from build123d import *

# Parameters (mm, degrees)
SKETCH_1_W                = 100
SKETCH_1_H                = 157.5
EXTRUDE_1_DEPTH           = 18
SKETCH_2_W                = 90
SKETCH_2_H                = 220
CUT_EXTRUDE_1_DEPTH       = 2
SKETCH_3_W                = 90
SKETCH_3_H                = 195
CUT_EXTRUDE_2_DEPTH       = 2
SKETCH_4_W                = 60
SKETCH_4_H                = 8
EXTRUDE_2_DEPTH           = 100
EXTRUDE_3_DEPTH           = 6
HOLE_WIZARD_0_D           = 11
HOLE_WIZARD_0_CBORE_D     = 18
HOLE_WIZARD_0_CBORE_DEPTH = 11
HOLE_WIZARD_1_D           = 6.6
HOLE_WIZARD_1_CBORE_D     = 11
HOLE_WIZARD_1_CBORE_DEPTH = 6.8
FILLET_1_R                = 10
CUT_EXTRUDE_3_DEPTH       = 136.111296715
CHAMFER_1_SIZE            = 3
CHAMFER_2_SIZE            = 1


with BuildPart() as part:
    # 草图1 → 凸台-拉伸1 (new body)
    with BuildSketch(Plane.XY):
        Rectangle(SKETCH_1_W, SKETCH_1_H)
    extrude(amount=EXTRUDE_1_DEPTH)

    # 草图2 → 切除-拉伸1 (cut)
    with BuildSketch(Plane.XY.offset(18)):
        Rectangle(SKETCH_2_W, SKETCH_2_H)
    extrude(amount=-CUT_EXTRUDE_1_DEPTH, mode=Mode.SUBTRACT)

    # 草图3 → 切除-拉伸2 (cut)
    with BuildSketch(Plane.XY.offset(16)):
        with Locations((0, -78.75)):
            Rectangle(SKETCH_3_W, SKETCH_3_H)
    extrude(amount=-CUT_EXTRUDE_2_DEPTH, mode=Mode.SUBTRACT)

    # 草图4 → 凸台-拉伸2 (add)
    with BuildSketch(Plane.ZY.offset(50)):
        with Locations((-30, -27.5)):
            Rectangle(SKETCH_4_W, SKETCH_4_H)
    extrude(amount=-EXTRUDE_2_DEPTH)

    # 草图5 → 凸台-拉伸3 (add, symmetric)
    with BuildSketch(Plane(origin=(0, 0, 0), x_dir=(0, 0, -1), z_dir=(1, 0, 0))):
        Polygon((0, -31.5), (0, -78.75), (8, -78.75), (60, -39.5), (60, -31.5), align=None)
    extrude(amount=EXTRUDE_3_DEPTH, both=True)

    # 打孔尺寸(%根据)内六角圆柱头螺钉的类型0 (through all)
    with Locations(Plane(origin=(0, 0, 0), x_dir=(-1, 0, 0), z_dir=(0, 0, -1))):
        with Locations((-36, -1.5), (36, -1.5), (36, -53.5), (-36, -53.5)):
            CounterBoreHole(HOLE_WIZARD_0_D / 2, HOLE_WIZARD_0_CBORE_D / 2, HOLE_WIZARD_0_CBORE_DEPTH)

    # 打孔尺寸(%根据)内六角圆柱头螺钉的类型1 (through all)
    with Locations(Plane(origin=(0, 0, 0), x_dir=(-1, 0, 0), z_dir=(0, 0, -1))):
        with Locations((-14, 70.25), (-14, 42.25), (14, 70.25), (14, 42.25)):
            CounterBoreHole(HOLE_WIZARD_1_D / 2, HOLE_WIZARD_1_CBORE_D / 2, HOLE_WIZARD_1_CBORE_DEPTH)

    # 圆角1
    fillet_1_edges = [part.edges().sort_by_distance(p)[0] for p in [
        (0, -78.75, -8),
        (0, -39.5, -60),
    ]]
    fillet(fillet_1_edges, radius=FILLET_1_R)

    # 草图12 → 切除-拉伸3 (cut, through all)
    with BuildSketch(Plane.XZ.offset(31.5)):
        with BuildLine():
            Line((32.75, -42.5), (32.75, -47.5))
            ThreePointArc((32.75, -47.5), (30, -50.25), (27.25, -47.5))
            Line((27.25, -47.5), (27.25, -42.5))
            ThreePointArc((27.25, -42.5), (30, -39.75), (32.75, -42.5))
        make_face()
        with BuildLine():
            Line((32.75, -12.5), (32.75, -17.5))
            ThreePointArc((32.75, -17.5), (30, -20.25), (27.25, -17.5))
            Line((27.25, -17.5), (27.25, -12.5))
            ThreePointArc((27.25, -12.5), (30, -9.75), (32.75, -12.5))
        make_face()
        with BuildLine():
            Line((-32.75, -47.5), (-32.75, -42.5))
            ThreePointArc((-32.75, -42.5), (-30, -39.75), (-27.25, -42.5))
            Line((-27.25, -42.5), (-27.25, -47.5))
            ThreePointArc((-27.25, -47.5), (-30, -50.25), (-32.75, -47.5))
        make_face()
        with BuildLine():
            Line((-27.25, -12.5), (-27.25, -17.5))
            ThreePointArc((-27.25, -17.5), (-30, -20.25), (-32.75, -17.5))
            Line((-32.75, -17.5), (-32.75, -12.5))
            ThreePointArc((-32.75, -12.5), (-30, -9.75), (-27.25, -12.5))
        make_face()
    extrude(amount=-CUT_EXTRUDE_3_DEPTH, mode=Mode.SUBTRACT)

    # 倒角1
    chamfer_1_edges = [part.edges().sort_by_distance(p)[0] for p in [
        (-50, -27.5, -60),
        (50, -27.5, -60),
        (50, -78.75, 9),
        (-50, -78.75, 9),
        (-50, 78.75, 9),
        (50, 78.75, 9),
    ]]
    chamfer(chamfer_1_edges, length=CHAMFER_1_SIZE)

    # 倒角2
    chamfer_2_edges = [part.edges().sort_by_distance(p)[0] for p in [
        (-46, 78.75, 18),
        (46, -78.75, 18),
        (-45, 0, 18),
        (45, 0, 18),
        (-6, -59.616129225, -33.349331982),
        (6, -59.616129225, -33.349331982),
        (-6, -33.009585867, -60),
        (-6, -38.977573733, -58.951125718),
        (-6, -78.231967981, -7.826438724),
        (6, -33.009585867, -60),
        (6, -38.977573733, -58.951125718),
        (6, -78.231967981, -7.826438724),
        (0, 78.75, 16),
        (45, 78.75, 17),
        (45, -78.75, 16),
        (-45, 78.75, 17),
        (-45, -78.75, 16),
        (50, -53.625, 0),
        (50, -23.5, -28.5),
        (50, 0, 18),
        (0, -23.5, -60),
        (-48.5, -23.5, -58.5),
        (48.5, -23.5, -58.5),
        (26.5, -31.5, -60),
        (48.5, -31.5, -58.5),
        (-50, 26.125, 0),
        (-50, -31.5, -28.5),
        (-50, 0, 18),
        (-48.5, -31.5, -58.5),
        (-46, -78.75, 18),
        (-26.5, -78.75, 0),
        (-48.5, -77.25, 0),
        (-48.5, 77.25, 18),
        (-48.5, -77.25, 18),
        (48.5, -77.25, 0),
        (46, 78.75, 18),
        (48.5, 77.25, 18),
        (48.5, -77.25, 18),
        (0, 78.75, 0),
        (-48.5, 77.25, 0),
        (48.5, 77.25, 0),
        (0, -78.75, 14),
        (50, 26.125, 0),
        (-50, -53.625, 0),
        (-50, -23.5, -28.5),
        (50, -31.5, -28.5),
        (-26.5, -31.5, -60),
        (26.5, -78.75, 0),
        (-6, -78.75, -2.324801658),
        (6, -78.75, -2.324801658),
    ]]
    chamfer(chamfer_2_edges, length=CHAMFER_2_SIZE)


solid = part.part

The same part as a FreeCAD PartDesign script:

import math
import FreeCAD as App
import Part
import Sketcher


def edges_at(feature, points):
    """Names of the edges that pass closest to the given points."""
    edges = feature.Shape.Edges
    near = lambda p: min(range(len(edges)), key=lambda i: edges[i].distToShape(Part.Vertex(*p))[0])
    return sorted({f"Edge{near(p) + 1}" for p in points})

doc = App.newDocument("Part")
body = doc.addObject("PartDesign::Body", "Body")

# Sketch on XY plane
sketch1 = body.newObject("Sketcher::SketchObject", "Sketch")
sketch1.AttachmentSupport = (doc.getObject("XY_Plane"), [""])
sketch1.MapMode = "FlatFace"
sketch1.addGeometry([
    Part.LineSegment(App.Vector(-50, 79, 0), App.Vector(-50, -79, 0)),
    Part.LineSegment(App.Vector(-50, -79, 0), App.Vector(50, -79, 0)),
    Part.LineSegment(App.Vector(50, -79, 0), App.Vector(50, 79, 0)),
    Part.LineSegment(App.Vector(50, 79, 0), App.Vector(-50, 79, 0)),
], False)
sketch1.addConstraint([
    Sketcher.Constraint("Coincident", 0, 2, 1, 1),
    Sketcher.Constraint("Coincident", 1, 2, 2, 1),
    Sketcher.Constraint("Coincident", 2, 2, 3, 1),
    Sketcher.Constraint("Coincident", 3, 2, 0, 1),
    Sketcher.Constraint("Vertical", 0),
    Sketcher.Constraint("Horizontal", 1),
    Sketcher.Constraint("Vertical", 2),
    Sketcher.Constraint("Horizontal", 3),
    Sketcher.Constraint("Symmetric", 0, 2, 2, 2, -1, 1),
    Sketcher.Constraint("DistanceX", 1, 1, 1, 2, 100.0),
    Sketcher.Constraint("DistanceY", 0, 2, 0, 1, 157.5),
])
pad1 = body.newObject("PartDesign::Pad", "Pad")
pad1.Profile = sketch1
pad1.Length = 18

# Sketch on XY plane
sketch2 = body.newObject("Sketcher::SketchObject", "Sketch001")
sketch2.AttachmentSupport = (doc.getObject("XY_Plane"), [""])
sketch2.MapMode = "FlatFace"
sketch2.AttachmentOffset = App.Placement(App.Vector(0, 0, 18), App.Rotation())
sketch2.addGeometry([
    Part.LineSegment(App.Vector(-45, 110, 0), App.Vector(-45, -110, 0)),
    Part.LineSegment(App.Vector(-45, -110, 0), App.Vector(45, -110, 0)),
    Part.LineSegment(App.Vector(45, -110, 0), App.Vector(45, 110, 0)),
    Part.LineSegment(App.Vector(45, 110, 0), App.Vector(-45, 110, 0)),
], False)
sketch2.addConstraint([
    Sketcher.Constraint("Coincident", 0, 2, 1, 1),
    Sketcher.Constraint("Coincident", 1, 2, 2, 1),
    Sketcher.Constraint("Coincident", 2, 2, 3, 1),
    Sketcher.Constraint("Coincident", 3, 2, 0, 1),
    Sketcher.Constraint("Vertical", 0),
    Sketcher.Constraint("Horizontal", 1),
    Sketcher.Constraint("Vertical", 2),
    Sketcher.Constraint("Horizontal", 3),
    Sketcher.Constraint("Symmetric", 0, 2, 2, 2, -1, 1),
    Sketcher.Constraint("DistanceX", 1, 1, 1, 2, 90.0),
    Sketcher.Constraint("DistanceY", 0, 2, 0, 1, 220.0),
])
pocket1 = body.newObject("PartDesign::Pocket", "Pocket")
pocket1.Profile = sketch2
pocket1.Length = 2

# Sketch on XY plane
sketch3 = body.newObject("Sketcher::SketchObject", "Sketch002")
sketch3.AttachmentSupport = (doc.getObject("XY_Plane"), [""])
sketch3.MapMode = "FlatFace"
sketch3.AttachmentOffset = App.Placement(App.Vector(0, 0, 16), App.Rotation())
sketch3.addGeometry([
    Part.LineSegment(App.Vector(-45, 19, 0), App.Vector(-45, -176, 0)),
    Part.LineSegment(App.Vector(-45, -176, 0), App.Vector(45, -176, 0)),
    Part.LineSegment(App.Vector(45, -176, 0), App.Vector(45, 19, 0)),
    Part.LineSegment(App.Vector(45, 19, 0), App.Vector(-45, 19, 0)),
], False)
sketch3.addConstraint([
    Sketcher.Constraint("Coincident", 0, 2, 1, 1),
    Sketcher.Constraint("Coincident", 1, 2, 2, 1),
    Sketcher.Constraint("Coincident", 2, 2, 3, 1),
    Sketcher.Constraint("Coincident", 3, 2, 0, 1),
    Sketcher.Constraint("Vertical", 0),
    Sketcher.Constraint("Horizontal", 1),
    Sketcher.Constraint("Vertical", 2),
    Sketcher.Constraint("Horizontal", 3),
    Sketcher.Constraint("DistanceX", 1, 1, 1, 2, 90.0),
    Sketcher.Constraint("DistanceY", 0, 2, 0, 1, 195.0),
    Sketcher.Constraint("DistanceX", 0, 2, -1, 1, 45.0),
    Sketcher.Constraint("DistanceY", 0, 2, -1, 1, 176.25),
])
pocket2 = body.newObject("PartDesign::Pocket", "Pocket001")
pocket2.Profile = sketch3
pocket2.Length = 2

# Sketch on YZ plane
sketch4 = body.newObject("Sketcher::SketchObject", "Sketch003")
sketch4.AttachmentSupport = (doc.getObject("YZ_Plane"), [""])
sketch4.MapMode = "FlatFace"
sketch4.AttachmentOffset = App.Placement(App.Vector(0, 0, -50), App.Rotation())
sketch4.addGeometry([
    Part.LineSegment(App.Vector(-24, -60, 0), App.Vector(-32, -60, 0)),
    Part.LineSegment(App.Vector(-32, -60, 0), App.Vector(-32, 0, 0)),
    Part.LineSegment(App.Vector(-32, 0, 0), App.Vector(-24, 0, 0)),
    Part.LineSegment(App.Vector(-24, 0, 0), App.Vector(-24, -60, 0)),
], False)
sketch4.addConstraint([
    Sketcher.Constraint("Coincident", 0, 2, 1, 1),
    Sketcher.Constraint("Coincident", 1, 2, 2, 1),
    Sketcher.Constraint("Coincident", 2, 2, 3, 1),
    Sketcher.Constraint("Coincident", 3, 2, 0, 1),
    Sketcher.Constraint("Horizontal", 0),
    Sketcher.Constraint("Vertical", 1),
    Sketcher.Constraint("Horizontal", 2),
    Sketcher.Constraint("Vertical", 3),
    Sketcher.Constraint("PointOnObject", 1, 2, -1),
    Sketcher.Constraint("DistanceX", 0, 2, 0, 1, 8.0),
    Sketcher.Constraint("DistanceY", 1, 1, 1, 2, 60.0),
    Sketcher.Constraint("DistanceX", 0, 2, -1, 1, 31.5),
])
pad2 = body.newObject("PartDesign::Pad", "Pad001")
pad2.Profile = sketch4
pad2.Length = 100

# Sketch on YZ plane
sketch5 = body.newObject("Sketcher::SketchObject", "Sketch004")
sketch5.AttachmentSupport = (doc.getObject("YZ_Plane"), [""])
sketch5.MapMode = "FlatFace"
sketch5.addGeometry([
    Part.LineSegment(App.Vector(-32, 0, 0), App.Vector(-79, 0, 0)),  # 0
    Part.LineSegment(App.Vector(-79, 0, 0), App.Vector(-79, -8, 0)),  # 1
    Part.LineSegment(App.Vector(-79, -8, 0), App.Vector(-40, -60, 0)),  # 2
    Part.LineSegment(App.Vector(-40, -60, 0), App.Vector(-32, -60, 0)),  # 3
    Part.LineSegment(App.Vector(-32, -60, 0), App.Vector(-32, 0, 0)),  # 4
], False)
sketch5.addConstraint([
    Sketcher.Constraint("Coincident", 0, 2, 1, 1),
    Sketcher.Constraint("Coincident", 1, 2, 2, 1),
    Sketcher.Constraint("Coincident", 2, 2, 3, 1),
    Sketcher.Constraint("Coincident", 3, 2, 4, 1),
    Sketcher.Constraint("Coincident", 4, 2, 0, 1),
    Sketcher.Constraint("Horizontal", 0),
    Sketcher.Constraint("Vertical", 1),
    Sketcher.Constraint("Horizontal", 3),
    Sketcher.Constraint("Vertical", 4),
    Sketcher.Constraint("PointOnObject", 0, 2, -1),
    Sketcher.Constraint("Equal", 3, 1),
    Sketcher.Constraint("DistanceX", 3, 1, 3, 2, 8.0),
    Sketcher.Constraint("DistanceY", 4, 1, 4, 2, 60.0),
    Sketcher.Constraint("DistanceX", 0, 2, 0, 1, 47.25),
    Sketcher.Constraint("DistanceX", 2, 2, -1, 1, 39.5),
])
pad3 = body.newObject("PartDesign::Pad", "Pad002")
pad3.Profile = sketch5
pad3.Length = 12
pad3.Midplane = True

# Sketch on XY plane
sketch6 = body.newObject("Sketcher::SketchObject", "Sketch005")
sketch6.AttachmentSupport = (doc.getObject("XY_Plane"), [""])
sketch6.MapMode = "FlatFace"
sketch6.addGeometry([
    Part.Circle(App.Vector(36, -2, 0), App.Vector(0, 0, 1), 6),
    Part.Circle(App.Vector(-36, -2, 0), App.Vector(0, 0, 1), 6),
    Part.Circle(App.Vector(-36, -54, 0), App.Vector(0, 0, 1), 6),
    Part.Circle(App.Vector(36, -54, 0), App.Vector(0, 0, 1), 6),
], False)
sketch6.addConstraint([
    Sketcher.Constraint("Equal", 0, 1),
    Sketcher.Constraint("Equal", 1, 2),
    Sketcher.Constraint("Equal", 2, 3),
    Sketcher.Constraint("Symmetric", 0, 3, 1, 3, -2),
    Sketcher.Constraint("Symmetric", 2, 3, 3, 3, -2),
    Sketcher.Constraint("Vertical", 1, 3, 2, 3),
    Sketcher.Constraint("Diameter", 0, 11.0),
    Sketcher.Constraint("DistanceX", -1, 1, 0, 3, 36.0),
    Sketcher.Constraint("DistanceY", 2, 3, 1, 3, 52.0),
    Sketcher.Constraint("DistanceY", 0, 3, -1, 1, 1.5),
])
doc.recompute()
hole = body.newObject("PartDesign::Hole", "Hole")
hole.Profile = sketch6
hole.ThreadType = "None"
hole.Diameter = 11
hole.DepthType = "ThroughAll"
hole.HoleCutType = "Counterbore"
hole.HoleCutDiameter = 18
hole.HoleCutDepth = 11
hole.Reversed = True

# Sketch on XY plane
sketch7 = body.newObject("Sketcher::SketchObject", "Sketch006")
sketch7.AttachmentSupport = (doc.getObject("XY_Plane"), [""])
sketch7.MapMode = "FlatFace"
sketch7.addGeometry([
    Part.Circle(App.Vector(14, 70.2, 0), App.Vector(0, 0, 1), 3.3),
    Part.Circle(App.Vector(14, 42.2, 0), App.Vector(0, 0, 1), 3.3),
    Part.Circle(App.Vector(-14, 70.2, 0), App.Vector(0, 0, 1), 3.3),
    Part.Circle(App.Vector(-14, 42.2, 0), App.Vector(0, 0, 1), 3.3),
], False)
sketch7.addConstraint([
    Sketcher.Constraint("Equal", 0, 1),
    Sketcher.Constraint("Equal", 1, 2),
    Sketcher.Constraint("Equal", 2, 3),
    Sketcher.Constraint("Symmetric", 0, 3, 2, 3, -2),
    Sketcher.Constraint("Symmetric", 1, 3, 3, 3, -2),
    Sketcher.Constraint("Vertical", 0, 3, 1, 3),
    Sketcher.Constraint("Diameter", 0, 6.6),
    Sketcher.Constraint("DistanceX", -1, 1, 0, 3, 14.0),
    Sketcher.Constraint("DistanceY", 1, 3, 0, 3, 28.0),
    Sketcher.Constraint("DistanceY", -1, 1, 0, 3, 70.25),
])
doc.recompute()
hole2 = body.newObject("PartDesign::Hole", "Hole001")
hole2.Profile = sketch7
hole2.ThreadType = "None"
hole2.Diameter = 6.6
hole2.DepthType = "ThroughAll"
hole2.HoleCutType = "Counterbore"
hole2.HoleCutDiameter = 11
hole2.HoleCutDepth = 6.8
hole2.Reversed = True
doc.recompute()

fillet = body.newObject("PartDesign::Fillet", "Fillet")
fillet.Base = (hole2, edges_at(hole2, [(0, -78.75, -8), (0, -39.5, -60)]))
fillet.Radius = 10

# Sketch on XZ plane
sketch8 = body.newObject("Sketcher::SketchObject", "Sketch007")
sketch8.AttachmentSupport = (doc.getObject("XZ_Plane"), [""])
sketch8.MapMode = "FlatFace"
sketch8.AttachmentOffset = App.Placement(App.Vector(0, 0, 31.5), App.Rotation())
sketch8.addGeometry([
    Part.LineSegment(App.Vector(32.8, -47.5, 0), App.Vector(32.8, -42.5, 0)),  # 0
    Part.ArcOfCircle(Part.Circle(App.Vector(30, -42.5, 0), App.Vector(0, 0, 1), 2.8), math.radians(0), math.radians(180)),  # 1
    Part.LineSegment(App.Vector(27.2, -42.5, 0), App.Vector(27.2, -47.5, 0)),  # 2
    Part.ArcOfCircle(Part.Circle(App.Vector(30, -47.5, 0), App.Vector(0, 0, 1), 2.8), math.radians(180), math.radians(360)),  # 3
    Part.LineSegment(App.Vector(32.8, -17.5, 0), App.Vector(32.8, -12.5, 0)),  # 4
    Part.ArcOfCircle(Part.Circle(App.Vector(30, -12.5, 0), App.Vector(0, 0, 1), 2.8), math.radians(0), math.radians(180)),  # 5
    Part.LineSegment(App.Vector(27.2, -12.5, 0), App.Vector(27.2, -17.5, 0)),  # 6
    Part.ArcOfCircle(Part.Circle(App.Vector(30, -17.5, 0), App.Vector(0, 0, 1), 2.8), math.radians(180), math.radians(360)),  # 7
    Part.LineSegment(App.Vector(-32.8, -42.5, 0), App.Vector(-32.8, -47.5, 0)),  # 8
    Part.ArcOfCircle(Part.Circle(App.Vector(-30, -47.5, 0), App.Vector(0, 0, 1), 2.8), math.radians(180), math.radians(360)),  # 9
    Part.LineSegment(App.Vector(-27.2, -47.5, 0), App.Vector(-27.2, -42.5, 0)),  # 10
    Part.ArcOfCircle(Part.Circle(App.Vector(-30, -42.5, 0), App.Vector(0, 0, 1), 2.8), math.radians(0), math.radians(180)),  # 11
    Part.LineSegment(App.Vector(-27.2, -17.5, 0), App.Vector(-27.2, -12.5, 0)),  # 12
    Part.ArcOfCircle(Part.Circle(App.Vector(-30, -12.5, 0), App.Vector(0, 0, 1), 2.8), math.radians(0), math.radians(180)),  # 13
    Part.LineSegment(App.Vector(-32.8, -12.5, 0), App.Vector(-32.8, -17.5, 0)),  # 14
    Part.ArcOfCircle(Part.Circle(App.Vector(-30, -17.5, 0), App.Vector(0, 0, 1), 2.8), math.radians(180), math.radians(360)),  # 15
], False)
sketch8.addConstraint([
    Sketcher.Constraint("Tangent", 0, 2, 1, 1),
    Sketcher.Constraint("Tangent", 1, 2, 2, 1),
    Sketcher.Constraint("Tangent", 2, 2, 3, 1),
    Sketcher.Constraint("Tangent", 3, 2, 0, 1),
    Sketcher.Constraint("Tangent", 4, 2, 5, 1),
    Sketcher.Constraint("Tangent", 5, 2, 6, 1),
    Sketcher.Constraint("Tangent", 6, 2, 7, 1),
    Sketcher.Constraint("Tangent", 7, 2, 4, 1),
    Sketcher.Constraint("Tangent", 8, 2, 9, 1),
    Sketcher.Constraint("Tangent", 9, 2, 10, 1),
    Sketcher.Constraint("Tangent", 10, 2, 11, 1),
    Sketcher.Constraint("Tangent", 11, 2, 8, 1),
    Sketcher.Constraint("Tangent", 12, 2, 13, 1),
    Sketcher.Constraint("Tangent", 13, 2, 14, 1),
    Sketcher.Constraint("Tangent", 14, 2, 15, 1),
    Sketcher.Constraint("Tangent", 15, 2, 12, 1),
    Sketcher.Constraint("Vertical", 0),
    Sketcher.Constraint("Vertical", 2),
    Sketcher.Constraint("Vertical", 4),
    Sketcher.Constraint("Vertical", 6),
    Sketcher.Constraint("Vertical", 8),
    Sketcher.Constraint("Vertical", 10),
    Sketcher.Constraint("Vertical", 12),
    Sketcher.Constraint("Vertical", 14),
    Sketcher.Constraint("Equal", 3, 5),
    Sketcher.Constraint("Equal", 7, 9),
    Sketcher.Constraint("Equal", 11, 13),
    Sketcher.Constraint("Symmetric", 3, 3, 9, 3, -2),
    Sketcher.Constraint("Symmetric", 5, 3, 13, 3, -2),
    Sketcher.Constraint("Horizontal", 1, 3, 11, 3),
    Sketcher.Constraint("Horizontal", 7, 3, 15, 3),
    Sketcher.Constraint("Vertical", 3, 3, 5, 3),
    Sketcher.Constraint("Equal", 2, 4),
    Sketcher.Constraint("DistanceY", 0, 1, 0, 2, 5.0),
    Sketcher.Constraint("Radius", 1, 2.75),
    Sketcher.Constraint("DistanceX", -1, 1, 1, 3, 30.0),
    Sketcher.Constraint("DistanceY", 1, 3, 5, 3, 30.0),
    Sketcher.Constraint("DistanceY", 1, 3, -1, 1, 42.5),
])
pocket3 = body.newObject("PartDesign::Pocket", "Pocket002")
pocket3.Profile = sketch8
pocket3.Type = "ThroughAll"
doc.recompute()

chamfer = body.newObject("PartDesign::Chamfer", "Chamfer")
chamfer.Base = (pocket3, edges_at(pocket3, [
    (-50, -27.5, -60),
    (50, -27.5, -60),
    (50, -78.75, 9),
    (-50, -78.75, 9),
    (-50, 78.75, 9),
    (50, 78.75, 9),
]))
chamfer.Size = 3
doc.recompute()

chamfer2 = body.newObject("PartDesign::Chamfer", "Chamfer001")
chamfer2.Base = (chamfer, edges_at(chamfer, [
    (-46, 78.75, 18),
    (46, -78.75, 18),
    (-45, 0, 18),
    (45, 0, 18),
    (-6, -59.616, -33.349),
    (6, -59.616, -33.349),
    (-6, -33.01, -60),
    (-6, -38.978, -58.951),
    (-6, -78.232, -7.826),
    (6, -33.01, -60),
    (6, -38.978, -58.951),
    (6, -78.232, -7.826),
    (0, 78.75, 16),
    (45, 78.75, 17),
    (45, -78.75, 16),
    (-45, 78.75, 17),
    (-45, -78.75, 16),
    (50, -53.625, 0),
    (50, -23.5, -28.5),
    (50, 0, 18),
    (0, -23.5, -60),
    (-48.5, -23.5, -58.5),
    (48.5, -23.5, -58.5),
    (26.5, -31.5, -60),
    (48.5, -31.5, -58.5),
    (-50, 26.125, 0),
    (-50, -31.5, -28.5),
    (-50, 0, 18),
    (-48.5, -31.5, -58.5),
    (-46, -78.75, 18),
    (-26.5, -78.75, 0),
    (-48.5, -77.25, 0),
    (-48.5, 77.25, 18),
    (-48.5, -77.25, 18),
    (48.5, -77.25, 0),
    (46, 78.75, 18),
    (48.5, 77.25, 18),
    (48.5, -77.25, 18),
    (0, 78.75, 0),
    (-48.5, 77.25, 0),
    (48.5, 77.25, 0),
    (0, -78.75, 14),
    (50, 26.125, 0),
    (-50, -53.625, 0),
    (-50, -23.5, -28.5),
    (50, -31.5, -28.5),
    (-26.5, -31.5, -60),
    (26.5, -78.75, 0),
    (-6, -78.75, -2.325),
    (6, -78.75, -2.325),
]))
chamfer2.Size = 1

doc.recompute()
